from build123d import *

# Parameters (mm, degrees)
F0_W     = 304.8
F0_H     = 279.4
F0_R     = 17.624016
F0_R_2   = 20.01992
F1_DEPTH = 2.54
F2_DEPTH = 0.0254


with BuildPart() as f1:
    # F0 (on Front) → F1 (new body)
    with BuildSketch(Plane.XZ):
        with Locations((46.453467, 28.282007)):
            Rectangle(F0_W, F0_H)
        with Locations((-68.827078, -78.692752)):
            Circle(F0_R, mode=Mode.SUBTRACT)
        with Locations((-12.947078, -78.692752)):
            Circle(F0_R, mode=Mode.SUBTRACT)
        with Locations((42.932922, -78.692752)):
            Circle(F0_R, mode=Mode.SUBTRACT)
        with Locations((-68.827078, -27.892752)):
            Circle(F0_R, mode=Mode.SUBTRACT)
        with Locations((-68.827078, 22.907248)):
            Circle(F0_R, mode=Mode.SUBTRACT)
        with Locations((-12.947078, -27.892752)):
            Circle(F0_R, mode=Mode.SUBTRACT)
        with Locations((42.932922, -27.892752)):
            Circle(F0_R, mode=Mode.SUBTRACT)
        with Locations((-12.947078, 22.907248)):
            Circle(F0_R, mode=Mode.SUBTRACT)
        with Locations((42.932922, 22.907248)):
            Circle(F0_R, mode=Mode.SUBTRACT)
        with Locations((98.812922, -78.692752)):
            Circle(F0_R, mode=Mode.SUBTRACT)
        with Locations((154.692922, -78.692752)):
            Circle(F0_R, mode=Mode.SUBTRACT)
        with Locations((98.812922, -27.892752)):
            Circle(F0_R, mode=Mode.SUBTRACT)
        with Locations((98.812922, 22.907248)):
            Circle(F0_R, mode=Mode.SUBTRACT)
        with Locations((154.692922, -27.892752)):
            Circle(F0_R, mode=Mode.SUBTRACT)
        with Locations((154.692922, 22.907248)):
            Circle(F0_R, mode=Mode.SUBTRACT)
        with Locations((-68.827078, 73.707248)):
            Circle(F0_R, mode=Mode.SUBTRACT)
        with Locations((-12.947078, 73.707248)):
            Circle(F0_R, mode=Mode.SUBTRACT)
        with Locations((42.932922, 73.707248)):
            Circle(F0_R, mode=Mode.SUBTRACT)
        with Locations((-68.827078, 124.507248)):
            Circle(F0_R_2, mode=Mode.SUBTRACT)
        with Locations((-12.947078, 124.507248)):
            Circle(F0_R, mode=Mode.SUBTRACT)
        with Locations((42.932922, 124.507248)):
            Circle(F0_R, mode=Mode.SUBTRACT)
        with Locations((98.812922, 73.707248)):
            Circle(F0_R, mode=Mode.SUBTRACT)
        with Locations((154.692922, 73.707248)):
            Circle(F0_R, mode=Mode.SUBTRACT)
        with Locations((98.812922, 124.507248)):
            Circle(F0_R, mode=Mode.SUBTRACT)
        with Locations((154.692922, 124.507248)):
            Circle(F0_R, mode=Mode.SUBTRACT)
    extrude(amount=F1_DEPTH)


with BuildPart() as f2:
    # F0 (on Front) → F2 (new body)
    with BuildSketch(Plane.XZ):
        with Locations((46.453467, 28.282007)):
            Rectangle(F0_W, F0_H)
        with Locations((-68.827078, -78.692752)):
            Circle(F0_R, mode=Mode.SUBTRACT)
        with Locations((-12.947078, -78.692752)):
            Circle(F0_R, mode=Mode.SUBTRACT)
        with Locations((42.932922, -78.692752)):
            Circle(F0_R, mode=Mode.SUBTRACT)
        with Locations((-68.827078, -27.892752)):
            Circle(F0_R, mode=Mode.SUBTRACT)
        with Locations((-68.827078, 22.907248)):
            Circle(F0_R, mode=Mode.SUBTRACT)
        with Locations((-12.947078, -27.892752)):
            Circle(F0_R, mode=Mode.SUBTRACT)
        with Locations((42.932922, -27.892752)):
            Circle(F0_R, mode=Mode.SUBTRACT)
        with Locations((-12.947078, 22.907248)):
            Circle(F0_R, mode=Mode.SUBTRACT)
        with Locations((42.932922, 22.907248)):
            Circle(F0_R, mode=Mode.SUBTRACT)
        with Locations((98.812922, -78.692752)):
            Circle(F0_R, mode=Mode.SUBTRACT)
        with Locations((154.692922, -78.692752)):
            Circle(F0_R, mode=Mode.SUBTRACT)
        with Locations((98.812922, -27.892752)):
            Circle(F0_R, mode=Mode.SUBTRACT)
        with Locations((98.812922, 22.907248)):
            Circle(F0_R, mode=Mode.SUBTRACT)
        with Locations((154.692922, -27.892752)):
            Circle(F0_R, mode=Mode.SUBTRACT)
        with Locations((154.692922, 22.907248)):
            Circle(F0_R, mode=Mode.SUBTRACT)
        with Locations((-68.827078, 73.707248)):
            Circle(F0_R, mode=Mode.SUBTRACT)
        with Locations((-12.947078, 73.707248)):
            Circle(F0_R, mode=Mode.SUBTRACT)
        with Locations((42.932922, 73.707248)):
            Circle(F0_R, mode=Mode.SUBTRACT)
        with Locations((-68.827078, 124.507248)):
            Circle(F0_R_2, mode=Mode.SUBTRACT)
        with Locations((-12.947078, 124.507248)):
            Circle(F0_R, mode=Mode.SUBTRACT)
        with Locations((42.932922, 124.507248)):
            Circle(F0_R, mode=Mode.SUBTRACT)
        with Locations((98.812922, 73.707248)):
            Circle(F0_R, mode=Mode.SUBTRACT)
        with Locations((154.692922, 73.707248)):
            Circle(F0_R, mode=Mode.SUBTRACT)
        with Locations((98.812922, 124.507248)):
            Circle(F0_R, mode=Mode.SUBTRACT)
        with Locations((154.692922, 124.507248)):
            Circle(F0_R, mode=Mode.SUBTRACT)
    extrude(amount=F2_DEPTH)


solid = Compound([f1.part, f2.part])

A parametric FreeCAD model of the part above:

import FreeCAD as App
import Part
import Sketcher
Q = App.Units.Quantity


def add_polygon(sketch, points):
    """Adds a closed chain of lines whose ends are joined by coincident constraints."""
    first, n = sketch.GeometryCount, len(points)
    for a, b in zip(points, points[1:] + points[:1]):
        sketch.addGeometry(Part.LineSegment(App.Vector(*a, 0), App.Vector(*b, 0)), False)
    for i in range(n):
        sketch.addConstraint(Sketcher.Constraint("Coincident", first + i, 2, first + (i + 1) % n, 1))

doc = App.newDocument("Part")
body = doc.addObject("PartDesign::Body", "Body")

sketch1 = body.newObject("Sketcher::SketchObject", "Sketch")
sketch1.AttachmentSupport = (doc.getObject("XZ_Plane"), [""])
sketch1.MapMode = "FlatFace"
add_polygon(sketch1, [(-106, 168), (-106, -111), (199, -111), (199, 168)])
sketch1.addGeometry(Part.Circle(App.Vector(-69, -79, 0), App.Vector(0, 0, 1), 18), False)
sketch1.addGeometry(Part.Circle(App.Vector(-13, -79, 0), App.Vector(0, 0, 1), 18), False)
sketch1.addGeometry(Part.Circle(App.Vector(-69, -28, 0), App.Vector(0, 0, 1), 18), False)
sketch1.addGeometry(Part.Circle(App.Vector(-69, 23, 0), App.Vector(0, 0, 1), 18), False)
sketch1.addGeometry(Part.Circle(App.Vector(-13, -28, 0), App.Vector(0, 0, 1), 18), False)
sketch1.addGeometry(Part.Circle(App.Vector(-13, 23, 0), App.Vector(0, 0, 1), 18), False)
sketch1.addGeometry(Part.Circle(App.Vector(43, -79, 0), App.Vector(0, 0, 1), 18), False)
sketch1.addGeometry(Part.Circle(App.Vector(99, -79, 0), App.Vector(0, 0, 1), 18), False)
sketch1.addGeometry(Part.Circle(App.Vector(155, -79, 0), App.Vector(0, 0, 1), 18), False)
sketch1.addGeometry(Part.Circle(App.Vector(43, -28, 0), App.Vector(0, 0, 1), 18), False)
sketch1.addGeometry(Part.Circle(App.Vector(99, -28, 0), App.Vector(0, 0, 1), 18), False)
sketch1.addGeometry(Part.Circle(App.Vector(43, 23, 0), App.Vector(0, 0, 1), 18), False)
sketch1.addGeometry(Part.Circle(App.Vector(99, 23, 0), App.Vector(0, 0, 1), 18), False)
sketch1.addGeometry(Part.Circle(App.Vector(155, -28, 0), App.Vector(0, 0, 1), 18), False)
sketch1.addGeometry(Part.Circle(App.Vector(155, 23, 0), App.Vector(0, 0, 1), 18), False)
sketch1.addGeometry(Part.Circle(App.Vector(-69, 74, 0), App.Vector(0, 0, 1), 18), False)
sketch1.addGeometry(Part.Circle(App.Vector(-13, 74, 0), App.Vector(0, 0, 1), 18), False)
sketch1.addGeometry(Part.Circle(App.Vector(-69, 125, 0), App.Vector(0, 0, 1), 20), False)
sketch1.addGeometry(Part.Circle(App.Vector(-13, 125, 0), App.Vector(0, 0, 1), 18), False)
sketch1.addGeometry(Part.Circle(App.Vector(43, 74, 0), App.Vector(0, 0, 1), 18), False)
sketch1.addGeometry(Part.Circle(App.Vector(99, 74, 0), App.Vector(0, 0, 1), 18), False)
sketch1.addGeometry(Part.Circle(App.Vector(155, 74, 0), App.Vector(0, 0, 1), 18), False)
sketch1.addGeometry(Part.Circle(App.Vector(43, 125, 0), App.Vector(0, 0, 1), 18), False)
sketch1.addGeometry(Part.Circle(App.Vector(99, 125, 0), App.Vector(0, 0, 1), 18), False)
sketch1.addGeometry(Part.Circle(App.Vector(155, 125, 0), App.Vector(0, 0, 1), 18), False)
sketch1.addConstraint(Sketcher.Constraint("Vertical", 0))
sketch1.addConstraint(Sketcher.Constraint("Horizontal", 1))
sketch1.addConstraint(Sketcher.Constraint("Vertical", 2))
sketch1.addConstraint(Sketcher.Constraint("Horizontal", 3))
sketch1.addConstraint(Sketcher.Constraint("Equal", 4, 5))
sketch1.addConstraint(Sketcher.Constraint("Equal", 5, 6))
sketch1.addConstraint(Sketcher.Constraint("Equal", 6, 7))
sketch1.addConstraint(Sketcher.Constraint("Equal", 7, 8))
sketch1.addConstraint(Sketcher.Constraint("Equal", 8, 9))
sketch1.addConstraint(Sketcher.Constraint("Equal", 9, 10))
sketch1.addConstraint(Sketcher.Constraint("Equal", 10, 11))
sketch1.addConstraint(Sketcher.Constraint("Equal", 11, 12))
sketch1.addConstraint(Sketcher.Constraint("Equal", 12, 13))
sketch1.addConstraint(Sketcher.Constraint("Equal", 13, 14))
sketch1.addConstraint(Sketcher.Constraint("Equal", 14, 15))
sketch1.addConstraint(Sketcher.Constraint("Equal", 15, 16))
sketch1.addConstraint(Sketcher.Constraint("Equal", 16, 17))
sketch1.addConstraint(Sketcher.Constraint("Equal", 17, 18))
sketch1.addConstraint(Sketcher.Constraint("Equal", 18, 19))
sketch1.addConstraint(Sketcher.Constraint("Equal", 19, 20))
sketch1.addConstraint(Sketcher.Constraint("Equal", 20, 22))
sketch1.addConstraint(Sketcher.Constraint("Equal", 22, 23))
sketch1.addConstraint(Sketcher.Constraint("Equal", 23, 24))
sketch1.addConstraint(Sketcher.Constraint("Equal", 24, 25))
sketch1.addConstraint(Sketcher.Constraint("Equal", 25, 26))
sketch1.addConstraint(Sketcher.Constraint("Equal", 26, 27))
sketch1.addConstraint(Sketcher.Constraint("Equal", 27, 28))
sketch1.addConstraint(Sketcher.Constraint("Horizontal", 4, 3, 5, 3))
sketch1.addConstraint(Sketcher.Constraint("Horizontal", 6, 3, 8, 3))
sketch1.addConstraint(Sketcher.Constraint("Horizontal", 7, 3, 9, 3))
sketch1.addConstraint(Sketcher.Constraint("Horizontal", 5, 3, 10, 3))
sketch1.addConstraint(Sketcher.Constraint("Horizontal", 10, 3, 11, 3))
sketch1.addConstraint(Sketcher.Constraint("Horizontal", 11, 3, 12, 3))
sketch1.addConstraint(Sketcher.Constraint("Horizontal", 8, 3, 13, 3))
sketch1.addConstraint(Sketcher.Constraint("Horizontal", 13, 3, 14, 3))
sketch1.addConstraint(Sketcher.Constraint("Horizontal", 9, 3, 15, 3))
sketch1.addConstraint(Sketcher.Constraint("Horizontal", 15, 3, 16, 3))
sketch1.addConstraint(Sketcher.Constraint("Horizontal", 14, 3, 17, 3))
sketch1.addConstraint(Sketcher.Constraint("Horizontal", 16, 3, 18, 3))
sketch1.addConstraint(Sketcher.Constraint("Horizontal", 19, 3, 20, 3))
sketch1.addConstraint(Sketcher.Constraint("Horizontal", 21, 3, 22, 3))
sketch1.addConstraint(Sketcher.Constraint("Horizontal", 20, 3, 23, 3))
sketch1.addConstraint(Sketcher.Constraint("Horizontal", 23, 3, 24, 3))
sketch1.addConstraint(Sketcher.Constraint("Horizontal", 24, 3, 25, 3))
sketch1.addConstraint(Sketcher.Constraint("Horizontal", 22, 3, 26, 3))
sketch1.addConstraint(Sketcher.Constraint("Horizontal", 26, 3, 27, 3))
sketch1.addConstraint(Sketcher.Constraint("Horizontal", 27, 3, 28, 3))
sketch1.addConstraint(Sketcher.Constraint("Vertical", 4, 3, 6, 3))
sketch1.addConstraint(Sketcher.Constraint("Vertical", 6, 3, 7, 3))
sketch1.addConstraint(Sketcher.Constraint("Vertical", 5, 3, 8, 3))
sketch1.addConstraint(Sketcher.Constraint("Vertical", 8, 3, 9, 3))
sketch1.addConstraint(Sketcher.Constraint("Vertical", 10, 3, 13, 3))
sketch1.addConstraint(Sketcher.Constraint("Vertical", 11, 3, 14, 3))
sketch1.addConstraint(Sketcher.Constraint("Vertical", 13, 3, 15, 3))
sketch1.addConstraint(Sketcher.Constraint("Vertical", 14, 3, 16, 3))
sketch1.addConstraint(Sketcher.Constraint("Vertical", 12, 3, 17, 3))
sketch1.addConstraint(Sketcher.Constraint("Vertical", 17, 3, 18, 3))
sketch1.addConstraint(Sketcher.Constraint("Vertical", 7, 3, 19, 3))
sketch1.addConstraint(Sketcher.Constraint("Vertical", 9, 3, 20, 3))
sketch1.addConstraint(Sketcher.Constraint("Vertical", 19, 3, 21, 3))
sketch1.addConstraint(Sketcher.Constraint("Vertical", 20, 3, 22, 3))
sketch1.addConstraint(Sketcher.Constraint("Vertical", 15, 3, 23, 3))
sketch1.addConstraint(Sketcher.Constraint("Vertical", 16, 3, 24, 3))
sketch1.addConstraint(Sketcher.Constraint("Vertical", 18, 3, 25, 3))
sketch1.addConstraint(Sketcher.Constraint("Vertical", 23, 3, 26, 3))
sketch1.addConstraint(Sketcher.Constraint("Vertical", 24, 3, 27, 3))
sketch1.addConstraint(Sketcher.Constraint("Vertical", 25, 3, 28, 3))
sketch1.addConstraint(Sketcher.Constraint("DistanceX", 1, 1, 1, 2, Q("12 in")))
sketch1.addConstraint(Sketcher.Constraint("DistanceY", 0, 2, 0, 1, Q("11 in")))
sketch1.addConstraint(Sketcher.Constraint("DistanceY", 4, 3, 6, 3, Q("2 in")))
sketch1.addConstraint(Sketcher.Constraint("DistanceY", 6, 3, 7, 3, Q("2 in")))
sketch1.addConstraint(Sketcher.Constraint("DistanceY", 7, 3, 19, 3, Q("2 in")))
sketch1.addConstraint(Sketcher.Constraint("DistanceY", 19, 3, 21, 3, Q("2 in")))
sketch1.addConstraint(Sketcher.Constraint("DistanceX", 4, 3, 5, 3, Q("2.2 in")))
sketch1.addConstraint(Sketcher.Constraint("DistanceX", 5, 3, 10, 3, Q("2.2 in")))
sketch1.addConstraint(Sketcher.Constraint("DistanceX", 10, 3, 11, 3, Q("2.2 in")))
sketch1.addConstraint(Sketcher.Constraint("DistanceX", 11, 3, 12, 3, Q("2.2 in")))
sketch1.addConstraint(Sketcher.Constraint("Diameter", 21, 40.03984))
sketch1.addConstraint(Sketcher.Constraint("Diameter", 4, 35.248032))
sketch1.addConstraint(Sketcher.Constraint("DistanceX", 4, 3, -1, 1, 68.827078))
sketch1.addConstraint(Sketcher.Constraint("DistanceY", 4, 3, -1, 1, 78.692752))
sketch1.addConstraint(Sketcher.Constraint("DistanceY", 0, 2, 4, 3, 32.725241))
sketch1.addConstraint(Sketcher.Constraint("DistanceX", 0, 2, -1, 1, 105.946533))
pad1 = body.newObject("PartDesign::Pad", "Pad")
pad1.Profile = sketch1
pad1.Length = Q("0.1 in")
body2 = doc.addObject("PartDesign::Body", "Body001")

sketch2 = body2.newObject("Sketcher::SketchObject", "Sketch001")
sketch2.AttachmentSupport = (doc.getObject("XZ_Plane001"), [""])
sketch2.MapMode = "FlatFace"
add_polygon(sketch2, [(-106, 168), (-106, -111), (199, -111), (199, 168)])
sketch2.addGeometry(Part.Circle(App.Vector(-69, -79, 0), App.Vector(0, 0, 1), 18), False)
sketch2.addGeometry(Part.Circle(App.Vector(-13, -79, 0), App.Vector(0, 0, 1), 18), False)
sketch2.addGeometry(Part.Circle(App.Vector(-69, -28, 0), App.Vector(0, 0, 1), 18), False)
sketch2.addGeometry(Part.Circle(App.Vector(-69, 23, 0), App.Vector(0, 0, 1), 18), False)
sketch2.addGeometry(Part.Circle(App.Vector(-13, -28, 0), App.Vector(0, 0, 1), 18), False)
sketch2.addGeometry(Part.Circle(App.Vector(-13, 23, 0), App.Vector(0, 0, 1), 18), False)
sketch2.addGeometry(Part.Circle(App.Vector(43, -79, 0), App.Vector(0, 0, 1), 18), False)
sketch2.addGeometry(Part.Circle(App.Vector(99, -79, 0), App.Vector(0, 0, 1), 18), False)
sketch2.addGeometry(Part.Circle(App.Vector(155, -79, 0), App.Vector(0, 0, 1), 18), False)
sketch2.addGeometry(Part.Circle(App.Vector(43, -28, 0), App.Vector(0, 0, 1), 18), False)
sketch2.addGeometry(Part.Circle(App.Vector(99, -28, 0), App.Vector(0, 0, 1), 18), False)
sketch2.addGeometry(Part.Circle(App.Vector(43, 23, 0), App.Vector(0, 0, 1), 18), False)
sketch2.addGeometry(Part.Circle(App.Vector(99, 23, 0), App.Vector(0, 0, 1), 18), False)
sketch2.addGeometry(Part.Circle(App.Vector(155, -28, 0), App.Vector(0, 0, 1), 18), False)
sketch2.addGeometry(Part.Circle(App.Vector(155, 23, 0), App.Vector(0, 0, 1), 18), False)
sketch2.addGeometry(Part.Circle(App.Vector(-69, 74, 0), App.Vector(0, 0, 1), 18), False)
sketch2.addGeometry(Part.Circle(App.Vector(-13, 74, 0), App.Vector(0, 0, 1), 18), False)
sketch2.addGeometry(Part.Circle(App.Vector(-69, 125, 0), App.Vector(0, 0, 1), 20), False)
sketch2.addGeometry(Part.Circle(App.Vector(-13, 125, 0), App.Vector(0, 0, 1), 18), False)
sketch2.addGeometry(Part.Circle(App.Vector(43, 74, 0), App.Vector(0, 0, 1), 18), False)
sketch2.addGeometry(Part.Circle(App.Vector(99, 74, 0), App.Vector(0, 0, 1), 18), False)
sketch2.addGeometry(Part.Circle(App.Vector(155, 74, 0), App.Vector(0, 0, 1), 18), False)
sketch2.addGeometry(Part.Circle(App.Vector(43, 125, 0), App.Vector(0, 0, 1), 18), False)
sketch2.addGeometry(Part.Circle(App.Vector(99, 125, 0), App.Vector(0, 0, 1), 18), False)
sketch2.addGeometry(Part.Circle(App.Vector(155, 125, 0), App.Vector(0, 0, 1), 18), False)
sketch2.addConstraint(Sketcher.Constraint("Vertical", 0))
sketch2.addConstraint(Sketcher.Constraint("Horizontal", 1))
sketch2.addConstraint(Sketcher.Constraint("Vertical", 2))
sketch2.addConstraint(Sketcher.Constraint("Horizontal", 3))
sketch2.addConstraint(Sketcher.Constraint("Equal", 4, 5))
sketch2.addConstraint(Sketcher.Constraint("Equal", 5, 6))
sketch2.addConstraint(Sketcher.Constraint("Equal", 6, 7))
sketch2.addConstraint(Sketcher.Constraint("Equal", 7, 8))
sketch2.addConstraint(Sketcher.Constraint("Equal", 8, 9))
sketch2.addConstraint(Sketcher.Constraint("Equal", 9, 10))
sketch2.addConstraint(Sketcher.Constraint("Equal", 10, 11))
sketch2.addConstraint(Sketcher.Constraint("Equal", 11, 12))
sketch2.addConstraint(Sketcher.Constraint("Equal", 12, 13))
sketch2.addConstraint(Sketcher.Constraint("Equal", 13, 14))
sketch2.addConstraint(Sketcher.Constraint("Equal", 14, 15))
sketch2.addConstraint(Sketcher.Constraint("Equal", 15, 16))
sketch2.addConstraint(Sketcher.Constraint("Equal", 16, 17))
sketch2.addConstraint(Sketcher.Constraint("Equal", 17, 18))
sketch2.addConstraint(Sketcher.Constraint("Equal", 18, 19))
sketch2.addConstraint(Sketcher.Constraint("Equal", 19, 20))
sketch2.addConstraint(Sketcher.Constraint("Equal", 20, 22))
sketch2.addConstraint(Sketcher.Constraint("Equal", 22, 23))
sketch2.addConstraint(Sketcher.Constraint("Equal", 23, 24))
sketch2.addConstraint(Sketcher.Constraint("Equal", 24, 25))
sketch2.addConstraint(Sketcher.Constraint("Equal", 25, 26))
sketch2.addConstraint(Sketcher.Constraint("Equal", 26, 27))
sketch2.addConstraint(Sketcher.Constraint("Equal", 27, 28))
sketch2.addConstraint(Sketcher.Constraint("Horizontal", 4, 3, 5, 3))
sketch2.addConstraint(Sketcher.Constraint("Horizontal", 6, 3, 8, 3))
sketch2.addConstraint(Sketcher.Constraint("Horizontal", 7, 3, 9, 3))
sketch2.addConstraint(Sketcher.Constraint("Horizontal", 5, 3, 10, 3))
sketch2.addConstraint(Sketcher.Constraint("Horizontal", 10, 3, 11, 3))
sketch2.addConstraint(Sketcher.Constraint("Horizontal", 11, 3, 12, 3))
sketch2.addConstraint(Sketcher.Constraint("Horizontal", 8, 3, 13, 3))
sketch2.addConstraint(Sketcher.Constraint("Horizontal", 13, 3, 14, 3))
sketch2.addConstraint(Sketcher.Constraint("Horizontal", 9, 3, 15, 3))
sketch2.addConstraint(Sketcher.Constraint("Horizontal", 15, 3, 16, 3))
sketch2.addConstraint(Sketcher.Constraint("Horizontal", 14, 3, 17, 3))
sketch2.addConstraint(Sketcher.Constraint("Horizontal", 16, 3, 18, 3))
sketch2.addConstraint(Sketcher.Constraint("Horizontal", 19, 3, 20, 3))
sketch2.addConstraint(Sketcher.Constraint("Horizontal", 21, 3, 22, 3))
sketch2.addConstraint(Sketcher.Constraint("Horizontal", 20, 3, 23, 3))
sketch2.addConstraint(Sketcher.Constraint("Horizontal", 23, 3, 24, 3))
sketch2.addConstraint(Sketcher.Constraint("Horizontal", 24, 3, 25, 3))
sketch2.addConstraint(Sketcher.Constraint("Horizontal", 22, 3, 26, 3))
sketch2.addConstraint(Sketcher.Constraint("Horizontal", 26, 3, 27, 3))
sketch2.addConstraint(Sketcher.Constraint("Horizontal", 27, 3, 28, 3))
sketch2.addConstraint(Sketcher.Constraint("Vertical", 4, 3, 6, 3))
sketch2.addConstraint(Sketcher.Constraint("Vertical", 6, 3, 7, 3))
sketch2.addConstraint(Sketcher.Constraint("Vertical", 5, 3, 8, 3))
sketch2.addConstraint(Sketcher.Constraint("Vertical", 8, 3, 9, 3))
sketch2.addConstraint(Sketcher.Constraint("Vertical", 10, 3, 13, 3))
sketch2.addConstraint(Sketcher.Constraint("Vertical", 11, 3, 14, 3))
sketch2.addConstraint(Sketcher.Constraint("Vertical", 13, 3, 15, 3))
sketch2.addConstraint(Sketcher.Constraint("Vertical", 14, 3, 16, 3))
sketch2.addConstraint(Sketcher.Constraint("Vertical", 12, 3, 17, 3))
sketch2.addConstraint(Sketcher.Constraint("Vertical", 17, 3, 18, 3))
sketch2.addConstraint(Sketcher.Constraint("Vertical", 7, 3, 19, 3))
sketch2.addConstraint(Sketcher.Constraint("Vertical", 9, 3, 20, 3))
sketch2.addConstraint(Sketcher.Constraint("Vertical", 19, 3, 21, 3))
sketch2.addConstraint(Sketcher.Constraint("Vertical", 20, 3, 22, 3))
sketch2.addConstraint(Sketcher.Constraint("Vertical", 15, 3, 23, 3))
sketch2.addConstraint(Sketcher.Constraint("Vertical", 16, 3, 24, 3))
sketch2.addConstraint(Sketcher.Constraint("Vertical", 18, 3, 25, 3))
sketch2.addConstraint(Sketcher.Constraint("Vertical", 23, 3, 26, 3))
sketch2.addConstraint(Sketcher.Constraint("Vertical", 24, 3, 27, 3))
sketch2.addConstraint(Sketcher.Constraint("Vertical", 25, 3, 28, 3))
sketch2.addConstraint(Sketcher.Constraint("DistanceX", 1, 1, 1, 2, Q("12 in")))
sketch2.addConstraint(Sketcher.Constraint("DistanceY", 0, 2, 0, 1, Q("11 in")))
sketch2.addConstraint(Sketcher.Constraint("DistanceY", 4, 3, 6, 3, Q("2 in")))
sketch2.addConstraint(Sketcher.Constraint("DistanceY", 6, 3, 7, 3, Q("2 in")))
sketch2.addConstraint(Sketcher.Constraint("DistanceY", 7, 3, 19, 3, Q("2 in")))
sketch2.addConstraint(Sketcher.Constraint("DistanceY", 19, 3, 21, 3, Q("2 in")))
sketch2.addConstraint(Sketcher.Constraint("DistanceX", 4, 3, 5, 3, Q("2.2 in")))
sketch2.addConstraint(Sketcher.Constraint("DistanceX", 5, 3, 10, 3, Q("2.2 in")))
sketch2.addConstraint(Sketcher.Constraint("DistanceX", 10, 3, 11, 3, Q("2.2 in")))
sketch2.addConstraint(Sketcher.Constraint("DistanceX", 11, 3, 12, 3, Q("2.2 in")))
sketch2.addConstraint(Sketcher.Constraint("Diameter", 21, 40.03984))
sketch2.addConstraint(Sketcher.Constraint("Diameter", 4, 35.248032))
sketch2.addConstraint(Sketcher.Constraint("DistanceX", 4, 3, -1, 1, 68.827078))
sketch2.addConstraint(Sketcher.Constraint("DistanceY", 4, 3, -1, 1, 78.692752))
sketch2.addConstraint(Sketcher.Constraint("DistanceY", 0, 2, 4, 3, 32.725241))
sketch2.addConstraint(Sketcher.Constraint("DistanceX", 0, 2, -1, 1, 105.946533))
pad2 = body2.newObject("PartDesign::Pad", "Pad001")
pad2.Profile = sketch2
pad2.Length = Q("0.001 in")

doc.recompute()
